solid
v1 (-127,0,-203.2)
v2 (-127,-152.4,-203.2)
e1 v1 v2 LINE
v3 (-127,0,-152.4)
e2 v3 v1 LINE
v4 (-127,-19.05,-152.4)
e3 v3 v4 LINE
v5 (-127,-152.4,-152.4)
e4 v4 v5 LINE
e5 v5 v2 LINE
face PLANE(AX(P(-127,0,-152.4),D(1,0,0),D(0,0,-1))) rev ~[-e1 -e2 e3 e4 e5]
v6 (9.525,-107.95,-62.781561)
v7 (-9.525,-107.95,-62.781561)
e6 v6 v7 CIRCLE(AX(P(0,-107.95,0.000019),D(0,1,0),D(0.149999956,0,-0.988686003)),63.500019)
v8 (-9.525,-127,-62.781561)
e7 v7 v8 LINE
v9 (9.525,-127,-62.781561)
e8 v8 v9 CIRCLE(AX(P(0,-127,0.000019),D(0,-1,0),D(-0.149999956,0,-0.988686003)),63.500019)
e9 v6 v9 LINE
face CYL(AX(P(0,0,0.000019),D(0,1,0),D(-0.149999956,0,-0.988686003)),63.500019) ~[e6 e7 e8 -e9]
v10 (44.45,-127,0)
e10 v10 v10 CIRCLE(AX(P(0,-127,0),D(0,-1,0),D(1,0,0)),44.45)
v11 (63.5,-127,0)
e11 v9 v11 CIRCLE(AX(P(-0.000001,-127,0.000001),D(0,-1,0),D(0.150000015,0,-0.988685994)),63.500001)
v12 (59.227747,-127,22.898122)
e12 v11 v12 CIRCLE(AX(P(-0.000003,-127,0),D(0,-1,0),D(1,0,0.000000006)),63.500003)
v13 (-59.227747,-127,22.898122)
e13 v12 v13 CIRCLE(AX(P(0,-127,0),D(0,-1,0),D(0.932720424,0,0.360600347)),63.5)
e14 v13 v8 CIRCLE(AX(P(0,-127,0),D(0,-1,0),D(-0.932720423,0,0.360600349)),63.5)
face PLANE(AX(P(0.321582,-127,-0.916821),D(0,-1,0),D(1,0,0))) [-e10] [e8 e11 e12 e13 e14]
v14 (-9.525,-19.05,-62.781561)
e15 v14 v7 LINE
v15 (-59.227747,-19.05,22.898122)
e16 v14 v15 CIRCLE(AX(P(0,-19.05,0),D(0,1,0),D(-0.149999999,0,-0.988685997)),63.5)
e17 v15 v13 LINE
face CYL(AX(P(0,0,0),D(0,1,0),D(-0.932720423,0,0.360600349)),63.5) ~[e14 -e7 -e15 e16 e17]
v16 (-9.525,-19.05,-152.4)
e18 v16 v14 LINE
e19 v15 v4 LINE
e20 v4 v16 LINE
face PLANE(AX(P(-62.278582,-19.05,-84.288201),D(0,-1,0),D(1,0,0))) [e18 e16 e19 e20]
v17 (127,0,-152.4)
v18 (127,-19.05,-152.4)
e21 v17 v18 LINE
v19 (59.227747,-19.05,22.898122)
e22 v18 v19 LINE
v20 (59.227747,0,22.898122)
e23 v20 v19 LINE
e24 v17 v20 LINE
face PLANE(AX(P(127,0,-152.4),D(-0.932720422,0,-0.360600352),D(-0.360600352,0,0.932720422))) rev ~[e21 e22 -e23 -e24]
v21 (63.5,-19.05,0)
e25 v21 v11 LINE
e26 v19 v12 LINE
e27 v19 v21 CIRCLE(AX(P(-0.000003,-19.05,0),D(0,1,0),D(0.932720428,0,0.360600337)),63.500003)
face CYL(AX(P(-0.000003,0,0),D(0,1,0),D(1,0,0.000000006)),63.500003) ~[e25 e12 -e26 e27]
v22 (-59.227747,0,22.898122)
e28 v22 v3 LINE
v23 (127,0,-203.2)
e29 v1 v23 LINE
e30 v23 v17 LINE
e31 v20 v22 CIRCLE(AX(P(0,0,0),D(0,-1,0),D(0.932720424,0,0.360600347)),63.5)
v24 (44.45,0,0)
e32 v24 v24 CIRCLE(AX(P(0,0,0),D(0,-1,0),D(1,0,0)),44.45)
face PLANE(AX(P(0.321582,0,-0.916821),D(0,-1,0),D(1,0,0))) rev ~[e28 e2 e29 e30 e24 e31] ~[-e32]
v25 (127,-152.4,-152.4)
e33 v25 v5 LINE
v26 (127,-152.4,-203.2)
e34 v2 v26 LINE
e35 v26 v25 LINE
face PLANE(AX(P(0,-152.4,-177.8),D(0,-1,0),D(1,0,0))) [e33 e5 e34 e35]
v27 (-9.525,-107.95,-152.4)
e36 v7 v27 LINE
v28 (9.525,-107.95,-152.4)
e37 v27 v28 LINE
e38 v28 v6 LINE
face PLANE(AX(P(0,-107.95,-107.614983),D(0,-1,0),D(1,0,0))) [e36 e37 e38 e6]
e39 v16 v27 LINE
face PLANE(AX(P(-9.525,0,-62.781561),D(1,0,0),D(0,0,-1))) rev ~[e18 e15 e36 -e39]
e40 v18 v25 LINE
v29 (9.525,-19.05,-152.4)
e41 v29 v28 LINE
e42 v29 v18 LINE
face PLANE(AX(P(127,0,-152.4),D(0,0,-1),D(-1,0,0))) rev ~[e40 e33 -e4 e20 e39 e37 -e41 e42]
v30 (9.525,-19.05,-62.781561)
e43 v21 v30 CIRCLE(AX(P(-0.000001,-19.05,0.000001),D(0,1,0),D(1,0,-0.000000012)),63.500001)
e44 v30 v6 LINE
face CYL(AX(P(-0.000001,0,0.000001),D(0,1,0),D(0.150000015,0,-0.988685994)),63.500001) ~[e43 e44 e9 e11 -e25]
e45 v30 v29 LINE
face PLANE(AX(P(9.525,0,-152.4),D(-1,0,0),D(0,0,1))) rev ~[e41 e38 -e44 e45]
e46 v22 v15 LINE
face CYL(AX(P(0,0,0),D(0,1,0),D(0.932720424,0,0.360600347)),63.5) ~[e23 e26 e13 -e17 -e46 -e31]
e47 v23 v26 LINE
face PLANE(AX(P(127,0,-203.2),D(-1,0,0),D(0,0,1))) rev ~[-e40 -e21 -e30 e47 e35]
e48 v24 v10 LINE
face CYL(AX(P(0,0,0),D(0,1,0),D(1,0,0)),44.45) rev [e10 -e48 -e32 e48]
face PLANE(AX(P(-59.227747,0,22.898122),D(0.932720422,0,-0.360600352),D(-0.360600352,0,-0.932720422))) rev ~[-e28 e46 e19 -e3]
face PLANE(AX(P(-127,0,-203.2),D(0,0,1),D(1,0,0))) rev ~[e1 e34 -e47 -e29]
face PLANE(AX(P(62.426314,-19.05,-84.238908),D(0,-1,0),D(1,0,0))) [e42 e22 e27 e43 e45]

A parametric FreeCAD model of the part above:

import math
import FreeCAD as App
import Part
import Sketcher
from FreeCAD import Vector
Q = App.Units.Quantity

doc = App.newDocument("Part")
body = doc.addObject("PartDesign::Body", "Body")

# Sketch on XZ plane
sketch1 = body.newObject("Sketcher::SketchObject", "Sketch")
sketch1.AttachmentSupport = (doc.getObject("XZ_Plane"), [""])
sketch1.MapMode = "FlatFace"
sketch1.addGeometry([
    Part.LineSegment(Vector(127, -203, 0), Vector(127, -152, 0)),
    Part.LineSegment(Vector(127, -152, 0), Vector(-127, -152, 0)),
    Part.LineSegment(Vector(-127, -152, 0), Vector(-127, -203, 0)),
    Part.LineSegment(Vector(-127, -203, 0), Vector(127, -203, 0)),
], False)
sketch1.addConstraint([
    Sketcher.Constraint("Coincident", 0, 2, 1, 1),
    Sketcher.Constraint("Coincident", 1, 2, 2, 1),
    Sketcher.Constraint("Coincident", 2, 2, 3, 1),
    Sketcher.Constraint("Coincident", 3, 2, 0, 1),
    Sketcher.Constraint("Vertical", 0),
    Sketcher.Constraint("Horizontal", 1),
    Sketcher.Constraint("Vertical", 2),
    Sketcher.Constraint("Horizontal", 3),
    Sketcher.Constraint("DistanceX", 1, 2, 1, 1, Q("10 in")),
    Sketcher.Constraint("DistanceY", 0, 1, 0, 2, Q("2 in")),
    Sketcher.Constraint("DistanceX", -1, 1, 0, 2, Q("5 in")),
    Sketcher.Constraint("DistanceY", 0, 2, -1, 1, Q("6 in")),
])
pad1 = body.newObject("PartDesign::Pad", "Pad")
pad1.Profile = sketch1
pad1.Length = Q("6 in")

# Sketch on XZ plane
sketch2 = body.newObject("Sketcher::SketchObject", "Sketch001")
sketch2.AttachmentSupport = (doc.getObject("XZ_Plane"), [""])
sketch2.MapMode = "FlatFace"
sketch2.addGeometry([
    Part.ArcOfCircle(Part.Circle(Vector(0, 0, 0), Vector(0, 0, 1), 64), math.radians(0), math.radians(21)),  # 0
    Part.ArcOfCircle(Part.Circle(Vector(0, 0, 0), Vector(0, 0, 1), 64), math.radians(-81), math.radians(0)),  # 1
    Part.LineSegment(Vector(10, -63, 0), Vector(10, -152, 0)),  # 2
    Part.LineSegment(Vector(10, -152, 0), Vector(127, -152, 0)),  # 3
    Part.LineSegment(Vector(127, -152, 0), Vector(59, 23, 0)),  # 4
    Part.ArcOfCircle(Part.Circle(Vector(0, 0, 0), Vector(0, 0, 1), 64), math.radians(159), math.radians(261)),  # 5
    Part.LineSegment(Vector(-59, 23, 0), Vector(-127, -152, 0)),  # 6
    Part.LineSegment(Vector(-127, -152, 0), Vector(-10, -152, 0)),  # 7
    Part.LineSegment(Vector(-10, -152, 0), Vector(-10, -63, 0)),  # 8
], False)
sketch2.addConstraint([
    Sketcher.Constraint("Tangent", 0, 1, 1, 2),
    Sketcher.Constraint("Coincident", 1, 1, 2, 1),
    Sketcher.Constraint("Coincident", 2, 2, 3, 1),
    Sketcher.Constraint("Coincident", 3, 2, 4, 1),
    Sketcher.Constraint("Tangent", 4, 2, 0, 2),
    Sketcher.Constraint("Tangent", 5, 1, 6, 1),
    Sketcher.Constraint("Coincident", 6, 2, 7, 1),
    Sketcher.Constraint("Coincident", 7, 2, 8, 1),
    Sketcher.Constraint("Coincident", 8, 2, 5, 2),
    Sketcher.Constraint("Vertical", 2),
    Sketcher.Constraint("Horizontal", 3),
    Sketcher.Constraint("Horizontal", 7),
    Sketcher.Constraint("Vertical", 8),
    Sketcher.Constraint("Coincident", 0, 3, -1, 1),
    Sketcher.Constraint("Coincident", 5, 3, -1, 1),
    Sketcher.Constraint("Equal", 0, 1),
    Sketcher.Constraint("Equal", 1, 5),
    Sketcher.Constraint("Symmetric", 3, 2, 6, 2, -2),
    Sketcher.Constraint("PointOnObject", 0, 1, -1),
    Sketcher.Constraint("Horizontal", 1, 1, 8, 2),
    Sketcher.Constraint("Radius", 0, Q("2.5000001 in")),
    Sketcher.Constraint("DistanceY", 2, 2, -1, 1, Q("6 in")),
    Sketcher.Constraint("DistanceX", -1, 1, 3, 2, Q("5 in")),
    Sketcher.Constraint("DistanceX", 3, 1, 3, 2, Q("4.625 in")),
])
pad2 = body.newObject("PartDesign::Pad", "Pad001")
pad2.Profile = sketch2
pad2.Length = Q("0.75 in")

# Sketch on XZ plane
sketch3 = body.newObject("Sketcher::SketchObject", "Sketch002")
sketch3.AttachmentSupport = (doc.getObject("XZ_Plane"), [""])
sketch3.MapMode = "FlatFace"
sketch3.addGeometry([
    Part.ArcOfCircle(Part.Circle(Vector(-0.000001, 0.000001, 0), Vector(0, 0, 1), 63.500001), math.radians(-81.373073), math.radians(-0.000001)),  # 0
    Part.ArcOfCircle(Part.Circle(Vector(-0.000003, 0, 0), Vector(0, 0, 1), 63.500003), math.radians(0), math.radians(21.137069)),  # 1
    Part.ArcOfCircle(Part.Circle(Vector(0, 0, 0), Vector(0, 0, 1), 63.5), math.radians(21.13707), math.radians(158.86293)),  # 2
    Part.ArcOfCircle(Part.Circle(Vector(0, 0, 0), Vector(0, 0, 1), 63.5), math.radians(158.86293), math.radians(261.373074)),  # 3
    Part.ArcOfCircle(Part.Circle(Vector(0, 0.000019, 0), Vector(0, 0, 1), 63.500019), math.radians(-98.626924), math.radians(-81.373076)),  # 4
    Part.Circle(Vector(0, 0, 0), Vector(0, 0, 1), 44.45),  # 5
], False)
sketch3.addConstraint([
    Sketcher.Constraint("Coincident", 0, 2, 1, 1),
    Sketcher.Constraint("Coincident", 1, 2, 2, 1),
    Sketcher.Constraint("Coincident", 2, 2, 3, 1),
    Sketcher.Constraint("Coincident", 3, 2, 4, 1),
    Sketcher.Constraint("Coincident", 4, 2, 0, 1),
    Sketcher.Constraint("Coincident", 0, 3, -1, 1),
    Sketcher.Constraint("Coincident", 1, 3, -1, 1),
    Sketcher.Constraint("Coincident", 2, 3, -1, 1),
    Sketcher.Constraint("Coincident", 3, 3, -1, 1),
    Sketcher.Constraint("Coincident", 5, 3, -1, 1),
    Sketcher.Constraint("PointOnObject", 0, 2, -1),
    Sketcher.Constraint("Diameter", 5, Q("3.5 in")),
    Sketcher.Constraint("Radius", 0, Q("2.5 in")),
    Sketcher.Constraint("DistanceX", 3, 2, 4, 2, Q("0.75 in")),
    Sketcher.Constraint("DistanceX", 3, 2, -1, 1, Q("0.375 in")),
    Sketcher.Constraint("Radius", 4, 63.500019),
    Sketcher.Constraint("DistanceY", 4, 3, 1, 2, Q("0.9015001 in")),
    Sketcher.Constraint("DistanceY", 4, 3, 2, 2, Q("0.9015001 in")),
])
pad3 = body.newObject("PartDesign::Pad", "Pad002")
pad3.Profile = sketch3
pad3.Length = Q("5 in")

# Sketch on XZ plane
sketch4 = body.newObject("Sketcher::SketchObject", "Sketch003")
sketch4.AttachmentSupport = (doc.getObject("XZ_Plane"), [""])
sketch4.MapMode = "FlatFace"
sketch4.addGeometry([
    Part.LineSegment(Vector(10, -152, 0), Vector(10, -63, 0)),
    Part.ArcOfCircle(Part.Circle(Vector(0, 0, 0), Vector(0, 0, 1), 64), math.radians(-98.63), math.radians(-81.37)),
    Part.LineSegment(Vector(-10, -63, 0), Vector(-10, -152, 0)),
    Part.LineSegment(Vector(-10, -152, 0), Vector(10, -152, 0)),
], False)
sketch4.addConstraint([
    Sketcher.Constraint("Coincident", 0, 2, 1, 2),
    Sketcher.Constraint("Coincident", 1, 1, 2, 1),
    Sketcher.Constraint("Coincident", 2, 2, 3, 1),
    Sketcher.Constraint("Coincident", 3, 2, 0, 1),
    Sketcher.Constraint("Vertical", 0),
    Sketcher.Constraint("Vertical", 2),
    Sketcher.Constraint("Horizontal", 3),
    Sketcher.Constraint("Symmetric", 0, 2, 1, 1, -2),
    Sketcher.Constraint("DistanceY", 2, 2, -1, 1, Q("6 in")),
    Sketcher.Constraint("DistanceX", 3, 1, 3, 2, Q("0.75 in")),
    Sketcher.Constraint("Radius", 1, 63.500019),
    Sketcher.Constraint("DistanceY", 0, 1, 0, 2, 89.618439),
])
pad4 = body.newObject("PartDesign::Pad", "Pad003")
pad4.Profile = sketch4
pad4.Length = Q("4.25 in")

doc.recompute()
